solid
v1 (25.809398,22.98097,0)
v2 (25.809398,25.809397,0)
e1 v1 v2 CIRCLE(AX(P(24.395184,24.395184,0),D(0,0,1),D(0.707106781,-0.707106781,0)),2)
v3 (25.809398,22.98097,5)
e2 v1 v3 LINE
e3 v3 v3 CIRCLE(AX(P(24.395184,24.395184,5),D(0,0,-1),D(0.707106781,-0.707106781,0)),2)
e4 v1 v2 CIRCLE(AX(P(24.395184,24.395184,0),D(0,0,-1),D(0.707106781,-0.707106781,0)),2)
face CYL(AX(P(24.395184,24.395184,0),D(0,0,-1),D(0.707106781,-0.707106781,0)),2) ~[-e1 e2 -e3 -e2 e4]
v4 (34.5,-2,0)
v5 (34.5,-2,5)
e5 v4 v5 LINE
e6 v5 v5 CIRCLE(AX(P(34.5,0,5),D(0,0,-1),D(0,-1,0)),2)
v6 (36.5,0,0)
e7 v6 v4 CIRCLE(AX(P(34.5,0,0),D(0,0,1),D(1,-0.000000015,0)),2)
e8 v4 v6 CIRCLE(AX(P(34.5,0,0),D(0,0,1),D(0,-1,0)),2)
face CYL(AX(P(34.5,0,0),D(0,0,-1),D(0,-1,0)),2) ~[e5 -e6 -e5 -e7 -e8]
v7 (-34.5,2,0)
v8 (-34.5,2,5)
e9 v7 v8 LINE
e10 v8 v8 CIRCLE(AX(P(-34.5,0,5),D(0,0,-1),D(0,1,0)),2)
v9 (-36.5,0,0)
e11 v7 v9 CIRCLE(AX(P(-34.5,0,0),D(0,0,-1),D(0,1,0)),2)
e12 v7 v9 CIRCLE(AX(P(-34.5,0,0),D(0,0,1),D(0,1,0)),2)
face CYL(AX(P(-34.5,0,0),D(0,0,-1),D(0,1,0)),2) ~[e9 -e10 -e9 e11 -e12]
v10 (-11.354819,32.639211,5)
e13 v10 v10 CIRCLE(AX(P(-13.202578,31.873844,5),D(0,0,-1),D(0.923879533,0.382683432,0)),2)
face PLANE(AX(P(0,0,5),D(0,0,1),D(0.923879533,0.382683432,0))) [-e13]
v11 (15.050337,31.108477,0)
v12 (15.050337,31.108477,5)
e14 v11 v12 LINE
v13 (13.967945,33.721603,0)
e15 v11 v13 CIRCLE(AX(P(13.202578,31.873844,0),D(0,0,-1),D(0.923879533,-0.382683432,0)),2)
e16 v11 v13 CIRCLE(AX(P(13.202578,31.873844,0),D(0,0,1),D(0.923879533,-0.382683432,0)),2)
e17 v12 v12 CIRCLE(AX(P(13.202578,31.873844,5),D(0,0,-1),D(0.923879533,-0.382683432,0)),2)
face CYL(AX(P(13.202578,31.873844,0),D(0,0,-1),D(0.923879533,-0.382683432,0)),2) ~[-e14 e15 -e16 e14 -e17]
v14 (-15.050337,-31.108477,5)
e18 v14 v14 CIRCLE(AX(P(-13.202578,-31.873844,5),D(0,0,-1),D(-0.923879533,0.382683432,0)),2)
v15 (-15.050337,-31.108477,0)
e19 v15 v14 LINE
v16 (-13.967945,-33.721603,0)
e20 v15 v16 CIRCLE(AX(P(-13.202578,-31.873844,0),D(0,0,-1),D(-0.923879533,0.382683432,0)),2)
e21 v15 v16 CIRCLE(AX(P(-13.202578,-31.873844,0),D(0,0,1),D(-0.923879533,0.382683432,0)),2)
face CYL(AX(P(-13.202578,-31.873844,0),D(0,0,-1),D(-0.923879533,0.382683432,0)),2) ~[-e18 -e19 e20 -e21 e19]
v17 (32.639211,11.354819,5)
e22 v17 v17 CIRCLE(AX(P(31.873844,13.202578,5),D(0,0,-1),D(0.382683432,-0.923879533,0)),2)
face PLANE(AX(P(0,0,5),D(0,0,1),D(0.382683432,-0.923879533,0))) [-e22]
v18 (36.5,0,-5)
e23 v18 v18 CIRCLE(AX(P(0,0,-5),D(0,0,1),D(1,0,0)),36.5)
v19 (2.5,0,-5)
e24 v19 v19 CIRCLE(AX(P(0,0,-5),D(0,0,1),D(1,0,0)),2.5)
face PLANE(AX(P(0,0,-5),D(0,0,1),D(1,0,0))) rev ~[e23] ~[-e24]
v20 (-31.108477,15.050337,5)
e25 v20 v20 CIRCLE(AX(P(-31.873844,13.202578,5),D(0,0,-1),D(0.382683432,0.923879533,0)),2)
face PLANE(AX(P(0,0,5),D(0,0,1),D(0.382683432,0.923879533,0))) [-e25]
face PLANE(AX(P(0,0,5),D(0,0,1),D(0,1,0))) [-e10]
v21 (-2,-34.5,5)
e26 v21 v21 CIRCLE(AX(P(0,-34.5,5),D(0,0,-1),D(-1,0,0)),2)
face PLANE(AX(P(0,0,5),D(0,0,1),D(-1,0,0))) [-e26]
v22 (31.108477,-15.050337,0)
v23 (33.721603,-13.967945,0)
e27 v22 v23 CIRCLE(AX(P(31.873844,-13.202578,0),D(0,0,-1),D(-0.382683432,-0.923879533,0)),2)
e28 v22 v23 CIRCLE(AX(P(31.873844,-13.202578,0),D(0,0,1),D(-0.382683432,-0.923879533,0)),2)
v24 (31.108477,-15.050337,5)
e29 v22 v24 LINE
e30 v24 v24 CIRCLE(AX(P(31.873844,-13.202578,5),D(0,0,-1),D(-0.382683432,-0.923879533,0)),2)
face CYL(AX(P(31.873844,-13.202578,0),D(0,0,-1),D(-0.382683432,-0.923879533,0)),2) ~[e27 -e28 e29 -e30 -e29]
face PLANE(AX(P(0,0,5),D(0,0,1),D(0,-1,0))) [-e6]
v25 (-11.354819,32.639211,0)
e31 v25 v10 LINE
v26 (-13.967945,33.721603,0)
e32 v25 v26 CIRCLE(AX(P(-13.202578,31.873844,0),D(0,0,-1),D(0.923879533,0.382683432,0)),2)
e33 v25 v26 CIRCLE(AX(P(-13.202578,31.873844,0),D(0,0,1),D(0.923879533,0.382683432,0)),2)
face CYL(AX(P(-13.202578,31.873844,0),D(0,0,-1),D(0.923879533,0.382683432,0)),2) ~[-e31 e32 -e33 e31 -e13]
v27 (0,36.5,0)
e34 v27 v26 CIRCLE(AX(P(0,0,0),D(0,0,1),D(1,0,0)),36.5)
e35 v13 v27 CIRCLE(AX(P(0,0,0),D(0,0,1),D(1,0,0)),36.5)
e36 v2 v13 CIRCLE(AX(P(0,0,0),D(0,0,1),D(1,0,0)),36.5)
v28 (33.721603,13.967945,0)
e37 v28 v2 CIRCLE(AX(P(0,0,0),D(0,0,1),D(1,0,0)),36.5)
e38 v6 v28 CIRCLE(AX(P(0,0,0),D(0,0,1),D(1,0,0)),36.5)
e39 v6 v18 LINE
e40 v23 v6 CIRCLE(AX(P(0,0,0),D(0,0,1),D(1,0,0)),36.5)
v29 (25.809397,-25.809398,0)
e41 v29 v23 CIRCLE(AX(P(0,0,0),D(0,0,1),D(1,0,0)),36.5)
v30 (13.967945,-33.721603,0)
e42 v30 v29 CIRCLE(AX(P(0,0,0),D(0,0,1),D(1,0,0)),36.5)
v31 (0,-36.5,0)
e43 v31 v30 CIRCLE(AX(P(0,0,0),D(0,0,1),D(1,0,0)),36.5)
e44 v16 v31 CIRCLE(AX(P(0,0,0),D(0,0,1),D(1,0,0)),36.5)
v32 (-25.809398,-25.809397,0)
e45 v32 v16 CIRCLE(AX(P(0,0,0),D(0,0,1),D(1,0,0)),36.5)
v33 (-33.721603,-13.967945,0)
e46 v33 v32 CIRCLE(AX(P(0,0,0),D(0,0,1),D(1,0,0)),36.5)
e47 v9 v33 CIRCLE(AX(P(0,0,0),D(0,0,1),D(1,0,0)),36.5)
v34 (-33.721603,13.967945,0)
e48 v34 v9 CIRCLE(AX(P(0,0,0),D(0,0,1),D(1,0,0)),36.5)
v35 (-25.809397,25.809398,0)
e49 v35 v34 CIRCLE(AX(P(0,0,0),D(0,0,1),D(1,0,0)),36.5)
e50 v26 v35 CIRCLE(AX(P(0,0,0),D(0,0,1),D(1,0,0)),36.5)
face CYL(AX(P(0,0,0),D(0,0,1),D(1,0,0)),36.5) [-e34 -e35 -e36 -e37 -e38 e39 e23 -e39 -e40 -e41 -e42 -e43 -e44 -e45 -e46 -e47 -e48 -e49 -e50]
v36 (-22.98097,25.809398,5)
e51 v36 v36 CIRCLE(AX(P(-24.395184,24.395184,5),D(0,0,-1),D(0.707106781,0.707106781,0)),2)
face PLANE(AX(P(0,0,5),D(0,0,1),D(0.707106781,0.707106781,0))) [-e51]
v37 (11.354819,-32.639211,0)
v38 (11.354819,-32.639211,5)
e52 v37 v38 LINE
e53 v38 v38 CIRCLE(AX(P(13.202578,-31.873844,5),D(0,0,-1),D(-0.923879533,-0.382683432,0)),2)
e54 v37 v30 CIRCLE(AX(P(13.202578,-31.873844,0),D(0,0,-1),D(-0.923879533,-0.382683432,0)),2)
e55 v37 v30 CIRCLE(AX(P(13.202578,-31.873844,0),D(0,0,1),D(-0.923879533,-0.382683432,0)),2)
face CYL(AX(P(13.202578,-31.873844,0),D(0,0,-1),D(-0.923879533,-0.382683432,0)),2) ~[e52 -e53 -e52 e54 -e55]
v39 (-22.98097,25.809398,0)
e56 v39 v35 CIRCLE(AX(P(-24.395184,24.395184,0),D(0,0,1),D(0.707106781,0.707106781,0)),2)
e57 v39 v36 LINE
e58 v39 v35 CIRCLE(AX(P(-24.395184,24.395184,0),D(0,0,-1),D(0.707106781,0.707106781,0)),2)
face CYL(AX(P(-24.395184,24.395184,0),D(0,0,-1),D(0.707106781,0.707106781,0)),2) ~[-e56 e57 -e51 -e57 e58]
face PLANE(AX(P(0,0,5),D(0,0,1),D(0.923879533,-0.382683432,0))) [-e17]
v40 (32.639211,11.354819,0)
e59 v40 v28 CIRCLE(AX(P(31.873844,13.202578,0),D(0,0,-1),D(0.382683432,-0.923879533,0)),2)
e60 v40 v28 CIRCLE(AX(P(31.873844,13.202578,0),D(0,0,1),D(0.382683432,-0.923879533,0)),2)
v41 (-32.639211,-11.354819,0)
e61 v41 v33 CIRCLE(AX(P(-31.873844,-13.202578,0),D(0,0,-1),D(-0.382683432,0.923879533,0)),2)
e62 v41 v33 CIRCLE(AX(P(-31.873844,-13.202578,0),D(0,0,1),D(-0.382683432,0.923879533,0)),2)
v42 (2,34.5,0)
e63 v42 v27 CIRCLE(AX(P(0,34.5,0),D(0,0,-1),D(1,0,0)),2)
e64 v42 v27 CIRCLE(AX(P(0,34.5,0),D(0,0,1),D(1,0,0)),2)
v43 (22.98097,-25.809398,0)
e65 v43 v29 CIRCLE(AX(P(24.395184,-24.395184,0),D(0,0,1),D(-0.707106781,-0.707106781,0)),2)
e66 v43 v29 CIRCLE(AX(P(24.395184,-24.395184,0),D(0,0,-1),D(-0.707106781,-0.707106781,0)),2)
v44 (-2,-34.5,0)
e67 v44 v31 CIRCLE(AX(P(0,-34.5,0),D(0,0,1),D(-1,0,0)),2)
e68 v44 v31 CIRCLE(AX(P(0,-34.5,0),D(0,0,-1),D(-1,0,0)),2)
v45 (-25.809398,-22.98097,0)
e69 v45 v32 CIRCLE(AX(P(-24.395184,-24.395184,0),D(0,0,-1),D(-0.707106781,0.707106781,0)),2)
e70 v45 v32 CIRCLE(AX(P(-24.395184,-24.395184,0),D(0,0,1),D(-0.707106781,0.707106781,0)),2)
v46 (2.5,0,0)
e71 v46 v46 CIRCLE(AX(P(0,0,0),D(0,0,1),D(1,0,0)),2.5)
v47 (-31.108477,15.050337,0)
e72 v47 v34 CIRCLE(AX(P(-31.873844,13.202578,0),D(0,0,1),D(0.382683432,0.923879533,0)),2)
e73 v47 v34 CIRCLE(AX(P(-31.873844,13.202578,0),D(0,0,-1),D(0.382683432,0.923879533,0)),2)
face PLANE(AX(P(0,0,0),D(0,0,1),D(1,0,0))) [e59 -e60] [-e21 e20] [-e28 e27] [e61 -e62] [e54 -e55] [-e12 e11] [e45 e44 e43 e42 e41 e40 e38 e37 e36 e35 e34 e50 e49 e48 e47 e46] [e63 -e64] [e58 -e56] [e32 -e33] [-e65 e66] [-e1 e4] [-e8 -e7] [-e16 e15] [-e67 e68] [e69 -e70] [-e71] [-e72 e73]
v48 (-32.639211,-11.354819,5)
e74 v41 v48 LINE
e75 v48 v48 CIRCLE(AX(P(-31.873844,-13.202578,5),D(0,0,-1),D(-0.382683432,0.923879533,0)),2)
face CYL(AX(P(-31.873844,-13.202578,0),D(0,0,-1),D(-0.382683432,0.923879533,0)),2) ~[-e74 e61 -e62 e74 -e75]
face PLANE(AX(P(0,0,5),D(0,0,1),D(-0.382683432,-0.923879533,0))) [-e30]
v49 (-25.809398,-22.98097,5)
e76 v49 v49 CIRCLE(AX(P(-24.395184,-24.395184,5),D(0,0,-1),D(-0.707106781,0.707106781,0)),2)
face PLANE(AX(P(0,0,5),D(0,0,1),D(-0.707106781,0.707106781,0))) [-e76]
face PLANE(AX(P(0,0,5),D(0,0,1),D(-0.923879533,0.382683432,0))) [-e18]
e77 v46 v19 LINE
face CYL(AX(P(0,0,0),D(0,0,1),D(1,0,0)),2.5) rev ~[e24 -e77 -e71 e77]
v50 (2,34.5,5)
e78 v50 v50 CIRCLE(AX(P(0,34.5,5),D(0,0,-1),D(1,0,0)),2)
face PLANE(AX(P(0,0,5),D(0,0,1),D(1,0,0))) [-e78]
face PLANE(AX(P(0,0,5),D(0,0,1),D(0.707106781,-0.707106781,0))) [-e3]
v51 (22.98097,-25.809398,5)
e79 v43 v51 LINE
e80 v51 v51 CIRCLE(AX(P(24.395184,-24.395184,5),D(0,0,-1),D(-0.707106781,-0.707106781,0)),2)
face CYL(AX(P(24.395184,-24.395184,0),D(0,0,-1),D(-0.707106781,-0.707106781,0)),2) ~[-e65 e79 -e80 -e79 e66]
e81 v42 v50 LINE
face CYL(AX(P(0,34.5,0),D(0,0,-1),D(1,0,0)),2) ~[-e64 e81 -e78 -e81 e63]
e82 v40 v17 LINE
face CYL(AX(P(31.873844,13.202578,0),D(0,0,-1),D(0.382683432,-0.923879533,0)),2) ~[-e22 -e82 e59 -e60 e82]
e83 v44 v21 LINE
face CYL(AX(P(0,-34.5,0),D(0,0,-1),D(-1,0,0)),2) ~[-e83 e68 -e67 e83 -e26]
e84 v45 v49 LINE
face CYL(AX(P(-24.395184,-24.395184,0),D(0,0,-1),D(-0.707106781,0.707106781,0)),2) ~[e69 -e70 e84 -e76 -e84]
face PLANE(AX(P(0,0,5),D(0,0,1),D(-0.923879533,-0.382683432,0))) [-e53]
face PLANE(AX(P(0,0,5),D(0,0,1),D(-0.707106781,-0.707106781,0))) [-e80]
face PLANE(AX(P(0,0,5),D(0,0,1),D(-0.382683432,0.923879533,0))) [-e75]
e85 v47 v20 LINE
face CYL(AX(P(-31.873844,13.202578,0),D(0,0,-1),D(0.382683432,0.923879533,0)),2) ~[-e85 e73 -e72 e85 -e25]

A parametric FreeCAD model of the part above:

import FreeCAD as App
import Part
import Sketcher
from FreeCAD import Vector

doc = App.newDocument("Part")
params = doc.addObject("Spreadsheet::Sheet", "Params")
for row, (alias, value) in enumerate([
    ("sketch1_diameter", "73 mm"),
    ("pad1_length", "5 mm"),
    ("sketch2_diameter", "4 mm"),
    ("pad2_length", "5 mm"),
    ("sketch3_diameter", "5 mm"),
    ("pocket1_length", "5 mm"),
], start=1):
    params.set(f"A{row}", alias)
    params.set(f"B{row}", "=" + value)
    params.setAlias(f"B{row}", alias)

body = doc.addObject("PartDesign::Body", "Body")

sketch1 = body.newObject("Sketcher::SketchObject", "Sketch")
sketch1.AttachmentSupport = (doc.getObject("XY_Plane"), [""])
sketch1.MapMode = "FlatFace"
sketch1.addGeometry(Part.Circle(Vector(0, 0, 0), Vector(0, 0, 1), 36.5), False)
sketch1.addConstraint(Sketcher.Constraint("Coincident", 0, 3, -1, 1))
sketch1.addConstraint(Sketcher.Constraint("Diameter", 0, 73.0))
sketch1.setExpression("Constraints[1]", "Params.sketch1_diameter")
pad1 = body.newObject("PartDesign::Pad", "Pad")
pad1.Profile = sketch1
pad1.setExpression("Length", "Params.pad1_length")
pad1.Reversed = True

sketch2 = body.newObject("Sketcher::SketchObject", "Sketch001")
sketch2.AttachmentSupport = (doc.getObject("XY_Plane"), [""])
sketch2.MapMode = "FlatFace"
sketch2.addGeometry(Part.Circle(Vector(0, 34.5, 0), Vector(0, 0, 1), 2), False)
sketch2.addConstraint(Sketcher.Constraint("PointOnObject", 0, 3, -2))
sketch2.addConstraint(Sketcher.Constraint("Diameter", 0, 4.0))
sketch2.addConstraint(Sketcher.Constraint("DistanceY", -1, 1, 0, 3, 34.5))
sketch2.setExpression("Constraints[1]", "Params.sketch2_diameter")
pad2 = body.newObject("PartDesign::Pad", "Pad001")
pad2.Profile = sketch2
pad2.setExpression("Length", "Params.pad2_length")
doc.recompute()

polarpattern = body.newObject("PartDesign::PolarPattern", "PolarPattern")
polarpattern.Originals = [pad2]
polarpattern.Axis = (doc.getObject("Z_Axis"), [""])
polarpattern.Angle = 360
polarpattern.Occurrences = 16
body.Tip = polarpattern

sketch3 = body.newObject("Sketcher::SketchObject", "Sketch002")
sketch3.AttachmentSupport = (doc.getObject("XY_Plane"), [""])
sketch3.MapMode = "FlatFace"
sketch3.addGeometry(Part.Circle(Vector(0, 0, 0), Vector(0, 0, 1), 2.5), False)
sketch3.addConstraint(Sketcher.Constraint("Coincident", 0, 3, -1, 1))
sketch3.addConstraint(Sketcher.Constraint("Diameter", 0, 5.0))
sketch3.setExpression("Constraints[1]", "Params.sketch3_diameter")
pocket1 = body.newObject("PartDesign::Pocket", "Pocket")
pocket1.Profile = sketch3
pocket1.setExpression("Length", "Params.pocket1_length")

doc.recompute()
